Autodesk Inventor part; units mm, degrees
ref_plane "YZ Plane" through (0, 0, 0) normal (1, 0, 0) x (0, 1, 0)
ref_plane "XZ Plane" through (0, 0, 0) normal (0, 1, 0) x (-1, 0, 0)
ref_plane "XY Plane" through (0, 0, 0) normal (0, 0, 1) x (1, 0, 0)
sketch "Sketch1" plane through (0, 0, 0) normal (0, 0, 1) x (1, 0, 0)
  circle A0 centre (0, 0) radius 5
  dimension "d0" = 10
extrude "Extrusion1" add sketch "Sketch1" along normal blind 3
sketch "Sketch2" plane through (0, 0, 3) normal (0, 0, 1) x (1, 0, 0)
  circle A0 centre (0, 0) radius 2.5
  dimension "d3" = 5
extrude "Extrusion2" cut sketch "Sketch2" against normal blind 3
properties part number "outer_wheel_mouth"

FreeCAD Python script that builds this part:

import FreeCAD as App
import Part
import Sketcher

doc = App.newDocument("Part")
body = doc.addObject("PartDesign::Body", "Body")

# Sketch on XY plane
sketch1 = body.newObject("Sketcher::SketchObject", "Sketch")
sketch1.AttachmentSupport = (doc.getObject("XY_Plane"), [""])
sketch1.MapMode = "FlatFace"
sketch1.addGeometry(Part.Circle(App.Vector(0, 0, 0), App.Vector(0, 0, 1), 5), False)
sketch1.addConstraint(Sketcher.Constraint("Coincident", 0, 3, -1, 1))
sketch1.addConstraint(Sketcher.Constraint("Diameter", 0, 10.0))
pad1 = body.newObject("PartDesign::Pad", "Pad")
pad1.Profile = sketch1
pad1.Length = 3

# Sketch on XY plane
sketch2 = body.newObject("Sketcher::SketchObject", "Sketch001")
sketch2.AttachmentSupport = (doc.getObject("XY_Plane"), [""])
sketch2.MapMode = "FlatFace"
sketch2.AttachmentOffset = App.Placement(App.Vector(0, 0, 3), App.Rotation())
sketch2.addGeometry(Part.Circle(App.Vector(0, 0, 0), App.Vector(0, 0, 1), 2.5), False)
sketch2.addConstraint(Sketcher.Constraint("Coincident", 0, 3, -1, 1))
sketch2.addConstraint(Sketcher.Constraint("Diameter", 0, 5.0))
pocket1 = body.newObject("PartDesign::Pocket", "Pocket")
pocket1.Profile = sketch2
pocket1.Length = 3

doc.recompute()
